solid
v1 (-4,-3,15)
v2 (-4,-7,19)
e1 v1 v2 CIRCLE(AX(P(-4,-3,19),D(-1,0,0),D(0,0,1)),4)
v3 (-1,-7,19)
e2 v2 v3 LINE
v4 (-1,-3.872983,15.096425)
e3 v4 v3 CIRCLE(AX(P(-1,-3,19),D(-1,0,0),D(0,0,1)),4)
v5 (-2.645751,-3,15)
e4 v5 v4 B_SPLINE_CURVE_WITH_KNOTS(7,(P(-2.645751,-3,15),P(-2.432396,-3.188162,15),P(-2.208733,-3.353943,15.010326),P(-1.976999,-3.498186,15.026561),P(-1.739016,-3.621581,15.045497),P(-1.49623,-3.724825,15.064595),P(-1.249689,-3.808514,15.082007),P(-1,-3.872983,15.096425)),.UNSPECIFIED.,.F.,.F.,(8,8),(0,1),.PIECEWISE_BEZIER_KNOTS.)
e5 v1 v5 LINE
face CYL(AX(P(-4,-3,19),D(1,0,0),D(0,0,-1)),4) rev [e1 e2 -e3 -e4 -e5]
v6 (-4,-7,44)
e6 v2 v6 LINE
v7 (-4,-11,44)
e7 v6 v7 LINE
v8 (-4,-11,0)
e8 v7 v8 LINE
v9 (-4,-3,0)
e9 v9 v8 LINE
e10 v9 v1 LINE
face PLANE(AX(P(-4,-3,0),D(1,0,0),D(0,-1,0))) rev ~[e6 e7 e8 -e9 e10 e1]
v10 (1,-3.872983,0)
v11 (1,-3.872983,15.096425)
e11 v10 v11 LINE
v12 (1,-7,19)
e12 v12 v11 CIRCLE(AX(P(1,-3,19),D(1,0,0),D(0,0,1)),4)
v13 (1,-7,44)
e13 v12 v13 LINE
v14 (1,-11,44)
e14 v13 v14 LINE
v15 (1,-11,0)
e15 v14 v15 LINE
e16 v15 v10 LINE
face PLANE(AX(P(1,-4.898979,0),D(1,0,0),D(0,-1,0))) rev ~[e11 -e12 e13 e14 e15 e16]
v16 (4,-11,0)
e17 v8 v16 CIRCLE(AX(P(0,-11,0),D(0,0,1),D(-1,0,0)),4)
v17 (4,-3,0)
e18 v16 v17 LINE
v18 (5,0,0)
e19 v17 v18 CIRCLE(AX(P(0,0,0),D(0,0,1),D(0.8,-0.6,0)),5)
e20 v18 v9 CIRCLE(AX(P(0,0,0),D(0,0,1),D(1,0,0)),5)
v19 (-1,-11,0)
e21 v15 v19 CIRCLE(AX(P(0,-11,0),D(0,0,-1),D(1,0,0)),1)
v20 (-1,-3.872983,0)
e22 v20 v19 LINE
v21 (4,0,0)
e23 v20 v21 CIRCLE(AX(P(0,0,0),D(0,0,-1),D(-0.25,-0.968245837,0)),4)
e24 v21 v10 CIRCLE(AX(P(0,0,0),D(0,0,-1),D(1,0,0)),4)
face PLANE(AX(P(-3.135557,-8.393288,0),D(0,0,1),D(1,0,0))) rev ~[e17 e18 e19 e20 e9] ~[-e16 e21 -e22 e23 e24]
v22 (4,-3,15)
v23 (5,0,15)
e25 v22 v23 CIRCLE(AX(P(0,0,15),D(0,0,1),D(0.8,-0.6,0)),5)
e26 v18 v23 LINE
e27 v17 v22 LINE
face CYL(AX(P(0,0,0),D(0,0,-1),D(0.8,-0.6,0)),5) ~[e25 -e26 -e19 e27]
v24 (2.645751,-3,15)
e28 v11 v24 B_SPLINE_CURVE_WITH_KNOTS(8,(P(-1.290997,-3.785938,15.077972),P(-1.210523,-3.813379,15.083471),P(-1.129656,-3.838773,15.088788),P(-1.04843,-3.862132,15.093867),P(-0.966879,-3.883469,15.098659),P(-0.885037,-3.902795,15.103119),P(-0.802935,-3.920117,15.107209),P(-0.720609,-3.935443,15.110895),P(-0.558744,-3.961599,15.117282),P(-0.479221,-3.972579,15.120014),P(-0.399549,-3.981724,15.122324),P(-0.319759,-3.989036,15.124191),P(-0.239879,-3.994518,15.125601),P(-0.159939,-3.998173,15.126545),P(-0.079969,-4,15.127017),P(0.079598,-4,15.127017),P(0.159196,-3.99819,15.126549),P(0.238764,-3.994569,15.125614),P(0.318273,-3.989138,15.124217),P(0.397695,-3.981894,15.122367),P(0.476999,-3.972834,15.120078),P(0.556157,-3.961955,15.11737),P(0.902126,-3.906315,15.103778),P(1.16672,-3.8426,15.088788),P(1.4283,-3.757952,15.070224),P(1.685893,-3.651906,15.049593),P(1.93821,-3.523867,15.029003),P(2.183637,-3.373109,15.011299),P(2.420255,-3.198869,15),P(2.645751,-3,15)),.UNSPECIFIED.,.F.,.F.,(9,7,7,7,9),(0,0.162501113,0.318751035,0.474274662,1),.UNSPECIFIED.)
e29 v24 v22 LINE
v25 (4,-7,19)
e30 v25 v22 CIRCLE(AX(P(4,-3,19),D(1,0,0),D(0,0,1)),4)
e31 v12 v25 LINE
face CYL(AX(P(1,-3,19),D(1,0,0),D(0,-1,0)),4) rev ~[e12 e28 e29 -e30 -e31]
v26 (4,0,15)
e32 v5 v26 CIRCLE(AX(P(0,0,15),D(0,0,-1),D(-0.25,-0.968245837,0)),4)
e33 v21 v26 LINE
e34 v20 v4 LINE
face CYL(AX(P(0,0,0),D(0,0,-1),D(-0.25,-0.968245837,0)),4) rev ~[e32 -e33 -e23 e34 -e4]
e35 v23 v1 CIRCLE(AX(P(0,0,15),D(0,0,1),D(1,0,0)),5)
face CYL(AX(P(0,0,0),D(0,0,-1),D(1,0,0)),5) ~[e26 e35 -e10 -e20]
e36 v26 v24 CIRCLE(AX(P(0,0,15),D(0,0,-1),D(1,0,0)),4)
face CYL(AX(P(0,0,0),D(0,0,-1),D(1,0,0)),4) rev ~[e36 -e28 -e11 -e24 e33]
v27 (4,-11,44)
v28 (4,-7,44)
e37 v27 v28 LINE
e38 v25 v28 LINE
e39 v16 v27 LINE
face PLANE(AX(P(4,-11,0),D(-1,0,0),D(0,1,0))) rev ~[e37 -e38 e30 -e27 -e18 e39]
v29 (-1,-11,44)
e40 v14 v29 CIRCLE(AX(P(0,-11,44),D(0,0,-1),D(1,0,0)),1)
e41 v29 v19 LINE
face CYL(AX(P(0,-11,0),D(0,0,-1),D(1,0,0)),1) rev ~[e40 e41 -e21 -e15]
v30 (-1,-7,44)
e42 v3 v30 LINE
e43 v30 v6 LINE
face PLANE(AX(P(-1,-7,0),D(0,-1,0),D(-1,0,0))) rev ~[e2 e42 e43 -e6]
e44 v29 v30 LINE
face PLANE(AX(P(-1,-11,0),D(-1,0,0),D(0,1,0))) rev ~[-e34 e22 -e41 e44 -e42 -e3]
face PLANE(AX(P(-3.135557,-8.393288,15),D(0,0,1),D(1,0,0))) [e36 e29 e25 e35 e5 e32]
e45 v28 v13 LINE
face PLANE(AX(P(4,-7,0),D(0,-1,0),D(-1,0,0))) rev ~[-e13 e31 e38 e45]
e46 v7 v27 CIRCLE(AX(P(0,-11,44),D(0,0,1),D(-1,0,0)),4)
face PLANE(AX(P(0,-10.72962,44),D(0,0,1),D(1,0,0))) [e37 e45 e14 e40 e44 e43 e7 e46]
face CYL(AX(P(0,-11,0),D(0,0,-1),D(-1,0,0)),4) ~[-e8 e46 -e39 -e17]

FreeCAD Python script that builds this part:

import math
import FreeCAD as App
import Part
import Sketcher

V = App.Vector


def edges_at(feature, points):
    """Names of the edges that pass closest to the given points."""
    edges = feature.Shape.Edges
    near = lambda p: min(range(len(edges)), key=lambda i: edges[i].distToShape(Part.Vertex(*p))[0])
    return sorted({f"Edge{near(p) + 1}" for p in points})

doc = App.newDocument("Part")
body = doc.addObject("PartDesign::Body", "Body")

# Sketch on XY plane
sketch1 = body.newObject("Sketcher::SketchObject", "Sketch")
sketch1.AttachmentSupport = (doc.getObject("XY_Plane"), [""])
sketch1.MapMode = "FlatFace"
sketch1.addGeometry([
    Part.ArcOfCircle(Part.Circle(V(0, 0, 0), V(0, 0, 1), 5), math.radians(-37), math.radians(0)),  # 0
    Part.ArcOfCircle(Part.Circle(V(0, 0, 0), V(0, 0, 1), 5), math.radians(0), math.radians(217)),  # 1
    Part.ArcOfCircle(Part.Circle(V(0, 0, 0), V(0, 0, 1), 5), math.radians(-143), math.radians(-102)),  # 2
    Part.LineSegment(V(-1, -4.9, 0), V(-1, -3.9, 0)),  # 3
    Part.ArcOfCircle(Part.Circle(V(0, 0, 0), V(0, 0, 1), 4), math.radians(0), math.radians(256)),  # 4
    Part.ArcOfCircle(Part.Circle(V(0, 0, 0), V(0, 0, 1), 4), math.radians(-76), math.radians(0)),  # 5
    Part.LineSegment(V(1, -3.9, 0), V(1, -4.9, 0)),  # 6
    Part.ArcOfCircle(Part.Circle(V(0, 0, 0), V(0, 0, 1), 5), math.radians(-78), math.radians(-37)),  # 7
], False)
sketch1.addConstraint([
    Sketcher.Constraint("Tangent", 0, 2, 1, 1),
    Sketcher.Constraint("Tangent", 1, 2, 2, 1),
    Sketcher.Constraint("Coincident", 2, 2, 3, 1),
    Sketcher.Constraint("Coincident", 3, 2, 4, 2),
    Sketcher.Constraint("Tangent", 4, 1, 5, 2),
    Sketcher.Constraint("Coincident", 5, 1, 6, 1),
    Sketcher.Constraint("Coincident", 6, 2, 7, 1),
    Sketcher.Constraint("Tangent", 7, 2, 0, 1),
    Sketcher.Constraint("Vertical", 3),
    Sketcher.Constraint("Vertical", 6),
    Sketcher.Constraint("Coincident", 0, 3, -1, 1),
    Sketcher.Constraint("Coincident", 2, 3, -1, 1),
    Sketcher.Constraint("Coincident", 4, 3, -1, 1),
    Sketcher.Constraint("Equal", 4, 5),
    Sketcher.Constraint("Equal", 2, 7),
    Sketcher.Constraint("PointOnObject", 0, 2, -1),
    Sketcher.Constraint("PointOnObject", 4, 1, -1),
    Sketcher.Constraint("Horizontal", 3, 2, 5, 1),
    Sketcher.Constraint("Horizontal", 1, 2, 7, 2),
    Sketcher.Constraint("Vertical", 4, 1, 7, 2),
    Sketcher.Constraint("Radius", 0, 5.0),
    Sketcher.Constraint("Radius", 4, 4.0),
    Sketcher.Constraint("DistanceX", 2, 2, -1, 1, 1.0),
])
pad1 = body.newObject("PartDesign::Pad", "Pad")
pad1.Profile = sketch1
pad1.Length = 15

# Sketch on XY plane
sketch2 = body.newObject("Sketcher::SketchObject", "Sketch001")
sketch2.AttachmentSupport = (doc.getObject("XY_Plane"), [""])
sketch2.MapMode = "FlatFace"
sketch2.addGeometry([
    Part.ArcOfCircle(Part.Circle(V(0, -11, 0), V(0, 0, 1), 4), math.radians(180), math.radians(360)),  # 0
    Part.LineSegment(V(4, -11, 0), V(4, -3, 0)),  # 1
    Part.ArcOfCircle(Part.Circle(V(0, 0, 0), V(0, 0, 1), 5), math.radians(-78), math.radians(-37)),  # 2
    Part.LineSegment(V(1, -4.9, 0), V(1, -11, 0)),  # 3
    Part.ArcOfCircle(Part.Circle(V(0, -11, 0), V(0, 0, 1), 1), math.radians(180), math.radians(360)),  # 4
    Part.LineSegment(V(-1, -11, 0), V(-1, -4.9, 0)),  # 5
    Part.ArcOfCircle(Part.Circle(V(0, 0, 0), V(0, 0, 1), 5), math.radians(-143), math.radians(-102)),  # 6
    Part.LineSegment(V(-4, -3, 0), V(-4, -11, 0)),  # 7
], False)
sketch2.addConstraint([
    Sketcher.Constraint("Tangent", 0, 2, 1, 1),
    Sketcher.Constraint("Coincident", 1, 2, 2, 2),
    Sketcher.Constraint("Coincident", 2, 1, 3, 1),
    Sketcher.Constraint("Tangent", 3, 2, 4, 2),
    Sketcher.Constraint("Tangent", 4, 1, 5, 1),
    Sketcher.Constraint("Coincident", 5, 2, 6, 2),
    Sketcher.Constraint("Coincident", 6, 1, 7, 1),
    Sketcher.Constraint("Tangent", 7, 2, 0, 1),
    Sketcher.Constraint("Vertical", 1),
    Sketcher.Constraint("Vertical", 3),
    Sketcher.Constraint("Vertical", 5),
    Sketcher.Constraint("Vertical", 7),
    Sketcher.Constraint("Coincident", 2, 3, -1, 1),
    Sketcher.Constraint("Coincident", 6, 3, -1, 1),
    Sketcher.Constraint("Coincident", 4, 3, 0, 3),
    Sketcher.Constraint("Equal", 2, 6),
    Sketcher.Constraint("PointOnObject", 0, 3, -2),
    Sketcher.Constraint("Radius", 0, 4.0),
    Sketcher.Constraint("Radius", 2, 5.0),
    Sketcher.Constraint("Radius", 4, 1.0),
    Sketcher.Constraint("DistanceY", 1, 1, 1, 2, 8.0),
])
pad2 = body.newObject("PartDesign::Pad", "Pad001")
pad2.Profile = sketch2
pad2.Length = 15

# Sketch on XY plane
sketch3 = body.newObject("Sketcher::SketchObject", "Sketch002")
sketch3.AttachmentSupport = (doc.getObject("XY_Plane"), [""])
sketch3.MapMode = "FlatFace"
sketch3.addGeometry([
    Part.ArcOfCircle(Part.Circle(V(0, -11, 0), V(0, 0, 1), 4), math.radians(180), math.radians(360)),  # 0
    Part.LineSegment(V(4, -11, 0), V(4, -7, 0)),  # 1
    Part.LineSegment(V(4, -7, 0), V(1, -7, 0)),  # 2
    Part.LineSegment(V(1, -7, 0), V(1, -11, 0)),  # 3
    Part.ArcOfCircle(Part.Circle(V(0, -11, 0), V(0, 0, 1), 1), math.radians(180), math.radians(360)),  # 4
    Part.LineSegment(V(-1, -11, 0), V(-1, -7, 0)),  # 5
    Part.LineSegment(V(-1, -7, 0), V(-4, -7, 0)),  # 6
    Part.LineSegment(V(-4, -7, 0), V(-4, -11, 0)),  # 7
], False)
sketch3.addConstraint([
    Sketcher.Constraint("Tangent", 0, 2, 1, 1),
    Sketcher.Constraint("Coincident", 1, 2, 2, 1),
    Sketcher.Constraint("Coincident", 2, 2, 3, 1),
    Sketcher.Constraint("Tangent", 3, 2, 4, 2),
    Sketcher.Constraint("Tangent", 4, 1, 5, 1),
    Sketcher.Constraint("Coincident", 5, 2, 6, 1),
    Sketcher.Constraint("Coincident", 6, 2, 7, 1),
    Sketcher.Constraint("Tangent", 7, 2, 0, 1),
    Sketcher.Constraint("Vertical", 1),
    Sketcher.Constraint("Horizontal", 2),
    Sketcher.Constraint("Vertical", 3),
    Sketcher.Constraint("Vertical", 5),
    Sketcher.Constraint("Horizontal", 6),
    Sketcher.Constraint("Vertical", 7),
    Sketcher.Constraint("Coincident", 4, 3, 0, 3),
    Sketcher.Constraint("Symmetric", 2, 2, 5, 2, -2),
    Sketcher.Constraint("Radius", 0, 4.0),
    Sketcher.Constraint("Radius", 4, 1.0),
    Sketcher.Constraint("DistanceY", 1, 1, 1, 2, 4.0),
    Sketcher.Constraint("DistanceY", 0, 3, -1, 1, 11.0),
])
pad3 = body.newObject("PartDesign::Pad", "Pad002")
pad3.Profile = sketch3
pad3.Length = 44
doc.recompute()

fillet = body.newObject("PartDesign::Fillet", "Fillet")
fillet.Base = (pad3, edges_at(pad3, [(-2.5, -7, 15), (2.5, -7, 15)]))
fillet.Radius = 4

doc.recompute()
